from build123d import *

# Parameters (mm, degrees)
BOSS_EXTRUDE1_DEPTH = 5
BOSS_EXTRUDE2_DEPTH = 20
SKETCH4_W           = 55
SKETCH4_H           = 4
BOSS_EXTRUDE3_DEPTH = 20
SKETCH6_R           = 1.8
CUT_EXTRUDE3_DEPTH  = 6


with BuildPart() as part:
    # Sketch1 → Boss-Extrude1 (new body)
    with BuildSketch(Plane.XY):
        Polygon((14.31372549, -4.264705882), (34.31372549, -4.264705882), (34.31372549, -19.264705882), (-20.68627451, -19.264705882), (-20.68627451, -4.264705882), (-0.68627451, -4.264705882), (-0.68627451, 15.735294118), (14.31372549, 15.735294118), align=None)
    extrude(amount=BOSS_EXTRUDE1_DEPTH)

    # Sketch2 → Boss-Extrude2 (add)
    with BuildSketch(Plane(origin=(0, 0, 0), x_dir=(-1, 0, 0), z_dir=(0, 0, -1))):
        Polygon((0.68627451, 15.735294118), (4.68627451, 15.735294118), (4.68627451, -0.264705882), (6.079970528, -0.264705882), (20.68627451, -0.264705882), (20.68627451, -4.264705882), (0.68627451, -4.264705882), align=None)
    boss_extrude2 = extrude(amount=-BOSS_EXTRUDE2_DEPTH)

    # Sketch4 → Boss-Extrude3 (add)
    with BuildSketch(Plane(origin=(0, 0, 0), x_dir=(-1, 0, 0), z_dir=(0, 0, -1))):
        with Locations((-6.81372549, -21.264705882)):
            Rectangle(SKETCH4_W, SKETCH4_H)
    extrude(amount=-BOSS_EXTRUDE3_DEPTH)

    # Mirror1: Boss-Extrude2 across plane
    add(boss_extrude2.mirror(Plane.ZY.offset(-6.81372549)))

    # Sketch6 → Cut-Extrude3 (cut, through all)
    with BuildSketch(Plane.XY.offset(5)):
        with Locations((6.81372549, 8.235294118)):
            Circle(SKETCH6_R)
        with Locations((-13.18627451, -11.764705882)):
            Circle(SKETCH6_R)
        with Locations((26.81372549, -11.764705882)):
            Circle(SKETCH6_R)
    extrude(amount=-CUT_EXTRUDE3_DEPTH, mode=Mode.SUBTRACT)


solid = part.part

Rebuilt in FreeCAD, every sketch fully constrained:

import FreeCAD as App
import Part
import Sketcher
from FreeCAD import Vector


def add_polygon(sketch, points):
    """Adds a closed chain of lines whose ends are joined by coincident constraints."""
    first, n = sketch.GeometryCount, len(points)
    for a, b in zip(points, points[1:] + points[:1]):
        sketch.addGeometry(Part.LineSegment(App.Vector(*a, 0), App.Vector(*b, 0)), False)
    for i in range(n):
        sketch.addConstraint(Sketcher.Constraint("Coincident", first + i, 2, first + (i + 1) % n, 1))

doc = App.newDocument("Part")
params = doc.addObject("Spreadsheet::Sheet", "Params")
for row, (alias, value) in enumerate([
    ("sketch1_width", "20 mm"),
    ("sketch1_width2", "15 mm"),
    ("pad1_length", "5 mm"),
    ("sketch2_width", "4 mm"),
    ("sketch2_width2", "20 mm"),
    ("pad2_length", "20 mm"),
    ("sketch3_width", "55 mm"),
    ("sketch3_height", "4 mm"),
    ("pad3_length", "20 mm"),
    ("sketch4_diameter", "3.6 mm"),
], start=1):
    params.set(f"A{row}", alias)
    params.set(f"B{row}", "=" + value)
    params.setAlias(f"B{row}", alias)

body = doc.addObject("PartDesign::Body", "Body")

sketch1 = body.newObject("Sketcher::SketchObject", "Sketch")
sketch1.AttachmentSupport = (doc.getObject("XY_Plane"), [""])
sketch1.MapMode = "FlatFace"
add_polygon(sketch1, [(34, -4), (14, -4), (14, 16), (-1, 16), (-1, -4), (-21, -4), (-21, -19), (34, -19)])
sketch1.addConstraint([
    Sketcher.Constraint("Horizontal", 0),
    Sketcher.Constraint("Vertical", 1),
    Sketcher.Constraint("Horizontal", 2),
    Sketcher.Constraint("Vertical", 3),
    Sketcher.Constraint("Horizontal", 4),
    Sketcher.Constraint("Vertical", 5),
    Sketcher.Constraint("Horizontal", 6),
    Sketcher.Constraint("Vertical", 7),
    Sketcher.Constraint("Horizontal", 0, 2, 3, 2),
    Sketcher.Constraint("Equal", 0, 4),
    Sketcher.Constraint("Equal", 4, 1),
    Sketcher.Constraint("Equal", 2, 5),
    Sketcher.Constraint("DistanceX", 0, 2, 0, 1, 20.0),
    Sketcher.Constraint("DistanceX", 2, 2, 2, 1, 15.0),
    Sketcher.Constraint("DistanceX", -1, 1, 0, 2, 14.313725),
    Sketcher.Constraint("DistanceY", 0, 2, -1, 1, 4.264706),
])
sketch1.setExpression("Constraints[20]", "Params.sketch1_width")
sketch1.setExpression("Constraints[21]", "Params.sketch1_width2")
pad1 = body.newObject("PartDesign::Pad", "Pad")
pad1.Profile = sketch1
pad1.setExpression("Length", "Params.pad1_length")

sketch2 = body.newObject("Sketcher::SketchObject", "Sketch001")
sketch2.AttachmentSupport = (doc.getObject("XY_Plane"), [""])
sketch2.MapMode = "FlatFace"
add_polygon(sketch2, [(-4.7, 15.7), (-0.7, 15.7), (-0.7, -4.3), (-20.7, -4.3), (-20.7, -0.3), (-4.7, -0.3)])
sketch2.addConstraint([
    Sketcher.Constraint("Horizontal", 0),
    Sketcher.Constraint("Vertical", 1),
    Sketcher.Constraint("Horizontal", 2),
    Sketcher.Constraint("Vertical", 3),
    Sketcher.Constraint("Horizontal", 4),
    Sketcher.Constraint("Vertical", 5),
    Sketcher.Constraint("Equal", 2, 1),
    Sketcher.Constraint("Equal", 0, 3),
    Sketcher.Constraint("DistanceX", 0, 1, 0, 2, 4.0),
    Sketcher.Constraint("DistanceX", 2, 2, 2, 1, 20.0),
    Sketcher.Constraint("DistanceX", 0, 2, -1, 1, 0.686275),
    Sketcher.Constraint("DistanceY", -1, 1, 0, 2, 15.735294),
])
sketch2.setExpression("Constraints[14]", "Params.sketch2_width")
sketch2.setExpression("Constraints[15]", "Params.sketch2_width2")
pad2 = body.newObject("PartDesign::Pad", "Pad001")
pad2.Profile = sketch2
pad2.setExpression("Length", "Params.pad2_length")

sketch3 = body.newObject("Sketcher::SketchObject", "Sketch002")
sketch3.AttachmentSupport = (doc.getObject("XY_Plane"), [""])
sketch3.MapMode = "FlatFace"
add_polygon(sketch3, [(34.3, -19.3), (34.3, -23.3), (-20.7, -23.3), (-20.7, -19.3)])
sketch3.addConstraint([
    Sketcher.Constraint("Vertical", 0),
    Sketcher.Constraint("Horizontal", 1),
    Sketcher.Constraint("Vertical", 2),
    Sketcher.Constraint("Horizontal", 3),
    Sketcher.Constraint("DistanceX", 1, 2, 1, 1, 55.0),
    Sketcher.Constraint("DistanceY", 0, 2, 0, 1, 4.0),
    Sketcher.Constraint("DistanceX", -1, 1, 0, 2, 34.313725),
    Sketcher.Constraint("DistanceY", 0, 2, -1, 1, 23.264706),
])
sketch3.setExpression("Constraints[8]", "Params.sketch3_width")
sketch3.setExpression("Constraints[9]", "Params.sketch3_height")
pad3 = body.newObject("PartDesign::Pad", "Pad002")
pad3.Profile = sketch3
pad3.setExpression("Length", "Params.pad3_length")
doc.recompute()

datumplane = body.newObject("PartDesign::Plane", "DatumPlane")
datumplane.AttachmentSupport = (doc.getObject("YZ_Plane"), [""])
datumplane.MapMode = "FlatFace"
datumplane.AttachmentOffset = App.Placement(Vector(0, 0, 6.813725), App.Rotation())
mirrored = body.newObject("PartDesign::Mirrored", "Mirrored")
mirrored.Originals = [pad2]
mirrored.MirrorPlane = (datumplane, [""])
body.Tip = mirrored

sketch4 = body.newObject("Sketcher::SketchObject", "Sketch003")
sketch4.AttachmentSupport = (doc.getObject("XY_Plane"), [""])
sketch4.MapMode = "FlatFace"
sketch4.AttachmentOffset = App.Placement(Vector(0, 0, 5), App.Rotation())
sketch4.addGeometry([
    Part.Circle(Vector(6.8, 8.2, 0), Vector(0, 0, 1), 1.8),
    Part.Circle(Vector(-13.2, -11.8, 0), Vector(0, 0, 1), 1.8),
    Part.Circle(Vector(26.8, -11.8, 0), Vector(0, 0, 1), 1.8),
], False)
sketch4.addConstraint([
    Sketcher.Constraint("Equal", 0, 1),
    Sketcher.Constraint("Equal", 1, 2),
    Sketcher.Constraint("Horizontal", 1, 3, 2, 3),
    Sketcher.Constraint("Diameter", 0, 3.6),
    Sketcher.Constraint("DistanceX", 1, 3, 0, 3, 20.0),
    Sketcher.Constraint("DistanceY", 1, 3, 0, 3, 20.0),
    Sketcher.Constraint("DistanceX", 0, 3, 2, 3, 20.0),
    Sketcher.Constraint("DistanceX", -1, 1, 0, 3, 6.813725),
    Sketcher.Constraint("DistanceY", -1, 1, 0, 3, 8.235294),
])
sketch4.setExpression("Constraints[3]", "Params.sketch4_diameter")
pocket1 = body.newObject("PartDesign::Pocket", "Pocket")
pocket1.Profile = sketch4
pocket1.Type = "ThroughAll"

doc.recompute()
